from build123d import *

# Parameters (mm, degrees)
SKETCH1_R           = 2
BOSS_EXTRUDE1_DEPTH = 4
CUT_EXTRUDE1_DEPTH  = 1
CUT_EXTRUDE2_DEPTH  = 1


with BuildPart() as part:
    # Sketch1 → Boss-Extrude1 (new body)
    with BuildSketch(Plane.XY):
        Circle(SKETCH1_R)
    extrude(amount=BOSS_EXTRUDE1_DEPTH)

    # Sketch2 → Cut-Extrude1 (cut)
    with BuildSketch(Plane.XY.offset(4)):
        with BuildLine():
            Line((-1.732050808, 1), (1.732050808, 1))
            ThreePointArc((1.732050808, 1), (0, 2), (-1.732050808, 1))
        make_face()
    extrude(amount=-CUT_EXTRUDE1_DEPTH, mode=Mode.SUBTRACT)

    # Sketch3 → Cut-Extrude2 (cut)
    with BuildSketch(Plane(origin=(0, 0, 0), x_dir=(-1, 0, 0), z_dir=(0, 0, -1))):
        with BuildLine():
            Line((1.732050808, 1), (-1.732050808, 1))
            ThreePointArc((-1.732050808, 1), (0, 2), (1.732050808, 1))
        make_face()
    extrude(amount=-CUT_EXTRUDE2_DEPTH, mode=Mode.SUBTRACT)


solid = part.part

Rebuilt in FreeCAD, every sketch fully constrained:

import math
import FreeCAD as App
import Part
import Sketcher
from FreeCAD import Vector
Q = App.Units.Quantity

doc = App.newDocument("Part")
params = doc.addObject("Spreadsheet::Sheet", "Params")
for row, (alias, value) in enumerate([
    ("sketch1_diameter", "4 mm"),
    ("pad1_length", "4 mm"),
    ("sketch2_radius", "2 mm"),
    ("pocket1_length", "1 mm"),
    ("sketch3_radius", "2 mm"),
    ("pocket2_length", "1 mm"),
], start=1):
    params.set(f"A{row}", alias)
    params.set(f"B{row}", "=" + value)
    params.setAlias(f"B{row}", alias)

body = doc.addObject("PartDesign::Body", "Body")

# Sketch on XY plane
sketch1 = body.newObject("Sketcher::SketchObject", "Sketch")
sketch1.AttachmentSupport = (doc.getObject("XY_Plane"), [""])
sketch1.MapMode = "FlatFace"
sketch1.addGeometry(Part.Circle(Vector(0, 0, 0), Vector(0, 0, 1), 2), False)
sketch1.addConstraint([
    Sketcher.Constraint("Coincident", 0, 3, -1, 1),
    Sketcher.Constraint("Diameter", 0, Q("4 mm")),
])
sketch1.setExpression("Constraints[1]", "Params.sketch1_diameter")
pad1 = body.newObject("PartDesign::Pad", "Pad")
pad1.Profile = sketch1
pad1.setExpression("Length", "Params.pad1_length")

# Sketch on XY plane
sketch2 = body.newObject("Sketcher::SketchObject", "Sketch001")
sketch2.AttachmentSupport = (doc.getObject("XY_Plane"), [""])
sketch2.MapMode = "FlatFace"
sketch2.AttachmentOffset = App.Placement(Vector(0, 0, 4), App.Rotation())
sketch2.addGeometry([
    Part.LineSegment(Vector(-1.7, 1, 0), Vector(1.7, 1, 0)),
    Part.ArcOfCircle(Part.Circle(Vector(0, 0, 0), Vector(0, 0, 1), 2), math.radians(30), math.radians(150)),
], False)
sketch2.addConstraint([
    Sketcher.Constraint("Coincident", 0, 1, 1, 2),
    Sketcher.Constraint("Coincident", 1, 1, 0, 2),
    Sketcher.Constraint("Horizontal", 0),
    Sketcher.Constraint("Coincident", 1, 3, -1, 1),
    Sketcher.Constraint("Radius", 1, Q("2 mm")),
    Sketcher.Constraint("DistanceY", -1, 1, 0, 1, Q("1 mm")),
])
sketch2.setExpression("Constraints[4]", "Params.sketch2_radius")
pocket1 = body.newObject("PartDesign::Pocket", "Pocket")
pocket1.Profile = sketch2
pocket1.setExpression("Length", "Params.pocket1_length")

# Sketch on XY plane
sketch3 = body.newObject("Sketcher::SketchObject", "Sketch002")
sketch3.AttachmentSupport = (doc.getObject("XY_Plane"), [""])
sketch3.MapMode = "FlatFace"
sketch3.addGeometry([
    Part.LineSegment(Vector(1.7, 1, 0), Vector(-1.7, 1, 0)),
    Part.ArcOfCircle(Part.Circle(Vector(0, 0, 0), Vector(0, 0, 1), 2), math.radians(30), math.radians(150)),
], False)
sketch3.addConstraint([
    Sketcher.Constraint("Coincident", 0, 1, 1, 1),
    Sketcher.Constraint("Coincident", 1, 2, 0, 2),
    Sketcher.Constraint("Horizontal", 0),
    Sketcher.Constraint("Coincident", 1, 3, -1, 1),
    Sketcher.Constraint("Radius", 1, Q("2 mm")),
    Sketcher.Constraint("DistanceY", -1, 1, 0, 1, Q("1 mm")),
])
sketch3.setExpression("Constraints[4]", "Params.sketch3_radius")
pocket2 = body.newObject("PartDesign::Pocket", "Pocket001")
pocket2.Profile = sketch3
pocket2.setExpression("Length", "Params.pocket2_length")
pocket2.Reversed = True

doc.recompute()
